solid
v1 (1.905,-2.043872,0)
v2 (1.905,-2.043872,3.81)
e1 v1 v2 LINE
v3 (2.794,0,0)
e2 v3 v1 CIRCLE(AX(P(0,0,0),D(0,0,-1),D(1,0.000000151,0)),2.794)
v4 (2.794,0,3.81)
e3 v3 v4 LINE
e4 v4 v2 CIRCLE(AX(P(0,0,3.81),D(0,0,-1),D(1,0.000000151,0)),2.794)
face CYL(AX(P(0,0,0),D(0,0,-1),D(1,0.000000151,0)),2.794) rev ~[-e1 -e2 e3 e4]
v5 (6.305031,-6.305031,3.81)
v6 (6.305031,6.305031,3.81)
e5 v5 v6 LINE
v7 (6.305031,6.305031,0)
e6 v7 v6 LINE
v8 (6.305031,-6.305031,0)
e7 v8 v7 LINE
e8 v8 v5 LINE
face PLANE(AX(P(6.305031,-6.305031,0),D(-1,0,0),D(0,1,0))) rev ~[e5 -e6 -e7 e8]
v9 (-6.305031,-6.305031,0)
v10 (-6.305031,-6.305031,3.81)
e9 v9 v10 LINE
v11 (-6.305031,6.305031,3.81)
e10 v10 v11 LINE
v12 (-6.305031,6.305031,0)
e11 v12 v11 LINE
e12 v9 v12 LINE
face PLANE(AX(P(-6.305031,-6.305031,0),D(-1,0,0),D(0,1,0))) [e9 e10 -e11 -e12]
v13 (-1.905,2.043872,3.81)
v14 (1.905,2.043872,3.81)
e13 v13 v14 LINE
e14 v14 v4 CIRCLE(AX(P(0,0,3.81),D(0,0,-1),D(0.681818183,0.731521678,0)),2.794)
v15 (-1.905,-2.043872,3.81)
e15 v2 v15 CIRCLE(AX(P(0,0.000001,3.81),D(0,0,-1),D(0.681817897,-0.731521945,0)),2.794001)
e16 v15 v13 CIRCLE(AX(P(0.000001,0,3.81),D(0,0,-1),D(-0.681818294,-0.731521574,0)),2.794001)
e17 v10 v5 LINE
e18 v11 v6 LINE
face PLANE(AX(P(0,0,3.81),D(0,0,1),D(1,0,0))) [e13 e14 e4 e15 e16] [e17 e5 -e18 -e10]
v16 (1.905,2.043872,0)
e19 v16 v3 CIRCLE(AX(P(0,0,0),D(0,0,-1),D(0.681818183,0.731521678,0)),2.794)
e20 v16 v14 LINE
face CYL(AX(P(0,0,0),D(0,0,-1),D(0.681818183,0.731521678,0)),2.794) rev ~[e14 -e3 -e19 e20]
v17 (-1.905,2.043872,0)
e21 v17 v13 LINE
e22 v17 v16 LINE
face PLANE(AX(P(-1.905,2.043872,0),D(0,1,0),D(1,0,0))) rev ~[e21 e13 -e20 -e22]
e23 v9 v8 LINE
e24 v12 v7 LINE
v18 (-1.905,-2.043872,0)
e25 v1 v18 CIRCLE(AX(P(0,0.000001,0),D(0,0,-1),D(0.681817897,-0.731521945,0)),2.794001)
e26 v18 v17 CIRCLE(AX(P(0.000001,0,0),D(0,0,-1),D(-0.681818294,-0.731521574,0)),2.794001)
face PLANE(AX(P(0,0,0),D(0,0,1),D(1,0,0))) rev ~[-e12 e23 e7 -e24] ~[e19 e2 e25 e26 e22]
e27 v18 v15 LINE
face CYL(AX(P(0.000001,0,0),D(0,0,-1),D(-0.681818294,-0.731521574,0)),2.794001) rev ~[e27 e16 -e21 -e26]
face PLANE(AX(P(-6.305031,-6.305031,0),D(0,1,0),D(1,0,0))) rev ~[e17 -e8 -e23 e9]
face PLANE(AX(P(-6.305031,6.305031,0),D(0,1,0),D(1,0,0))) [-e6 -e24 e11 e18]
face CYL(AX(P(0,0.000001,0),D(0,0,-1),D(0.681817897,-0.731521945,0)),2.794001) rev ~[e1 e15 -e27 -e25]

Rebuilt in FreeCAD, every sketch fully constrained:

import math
import FreeCAD as App
import Part
import Sketcher
from FreeCAD import Vector
Q = App.Units.Quantity

doc = App.newDocument("Part")
body = doc.addObject("PartDesign::Body", "Body")

sketch1 = body.newObject("Sketcher::SketchObject", "Sketch")
sketch1.AttachmentSupport = (doc.getObject("XY_Plane"), [""])
sketch1.MapMode = "FlatFace"
sketch1.addGeometry(Part.LineSegment(Vector(-6.3, 6.3, 0), Vector(-6.3, -6.3, 0)), False)
sketch1.addGeometry(Part.LineSegment(Vector(-6.3, -6.3, 0), Vector(6.3, -6.3, 0)), False)
sketch1.addGeometry(Part.LineSegment(Vector(6.3, -6.3, 0), Vector(6.3, 6.3, 0)), False)
sketch1.addGeometry(Part.LineSegment(Vector(6.3, 6.3, 0), Vector(-6.3, 6.3, 0)), False)
sketch1.addGeometry(Part.ArcOfCircle(Part.Circle(Vector(0, 0, 0), Vector(0, 0, 1), 2.8), math.radians(133), math.radians(227)), False)
sketch1.addGeometry(Part.LineSegment(Vector(-1.9, 2, 0), Vector(1.9, 2, 0)), False)
sketch1.addGeometry(Part.ArcOfCircle(Part.Circle(Vector(0, 0, 0), Vector(0, 0, 1), 2.8), math.radians(0), math.radians(47)), False)
sketch1.addGeometry(Part.ArcOfCircle(Part.Circle(Vector(0, 0, 0), Vector(0, 0, 1), 2.8), math.radians(-47), math.radians(0)), False)
sketch1.addGeometry(Part.ArcOfCircle(Part.Circle(Vector(0, 0, 0), Vector(0, 0, 1), 2.8), math.radians(-133), math.radians(-47)), False)
sketch1.addConstraint(Sketcher.Constraint("Coincident", 0, 2, 1, 1))
sketch1.addConstraint(Sketcher.Constraint("Coincident", 1, 2, 2, 1))
sketch1.addConstraint(Sketcher.Constraint("Coincident", 2, 2, 3, 1))
sketch1.addConstraint(Sketcher.Constraint("Coincident", 3, 2, 0, 1))
sketch1.addConstraint(Sketcher.Constraint("Coincident", 4, 1, 5, 1))
sketch1.addConstraint(Sketcher.Constraint("Coincident", 5, 2, 6, 2))
sketch1.addConstraint(Sketcher.Constraint("Tangent", 6, 1, 7, 2))
sketch1.addConstraint(Sketcher.Constraint("Tangent", 7, 1, 8, 2))
sketch1.addConstraint(Sketcher.Constraint("Tangent", 8, 1, 4, 2))
sketch1.addConstraint(Sketcher.Constraint("Vertical", 0))
sketch1.addConstraint(Sketcher.Constraint("Horizontal", 1))
sketch1.addConstraint(Sketcher.Constraint("Vertical", 2))
sketch1.addConstraint(Sketcher.Constraint("Horizontal", 3))
sketch1.addConstraint(Sketcher.Constraint("Horizontal", 5))
sketch1.addConstraint(Sketcher.Constraint("Coincident", 4, 3, -1, 1))
sketch1.addConstraint(Sketcher.Constraint("Coincident", 6, 3, -1, 1))
sketch1.addConstraint(Sketcher.Constraint("Equal", 4, 6))
sketch1.addConstraint(Sketcher.Constraint("Symmetric", 0, 2, 2, 2, -1, 1))
sketch1.addConstraint(Sketcher.Constraint("PointOnObject", 6, 1, -1))
sketch1.addConstraint(Sketcher.Constraint("Horizontal", 7, 1, 8, 1))
sketch1.addConstraint(Sketcher.Constraint("Vertical", 5, 2, 7, 1))
sketch1.addConstraint(Sketcher.Constraint("Equal", 3, 0))
sketch1.addConstraint(Sketcher.Constraint("Radius", 4, Q("0.11 in")))
sketch1.addConstraint(Sketcher.Constraint("DistanceX", 5, 1, 5, 2, Q("0.15 in")))
sketch1.addConstraint(Sketcher.Constraint("DistanceX", 1, 1, 1, 2, 12.610062))
pad1 = body.newObject("PartDesign::Pad", "Pad")
pad1.Profile = sketch1
pad1.Length = Q("0.15 in")

doc.recompute()
